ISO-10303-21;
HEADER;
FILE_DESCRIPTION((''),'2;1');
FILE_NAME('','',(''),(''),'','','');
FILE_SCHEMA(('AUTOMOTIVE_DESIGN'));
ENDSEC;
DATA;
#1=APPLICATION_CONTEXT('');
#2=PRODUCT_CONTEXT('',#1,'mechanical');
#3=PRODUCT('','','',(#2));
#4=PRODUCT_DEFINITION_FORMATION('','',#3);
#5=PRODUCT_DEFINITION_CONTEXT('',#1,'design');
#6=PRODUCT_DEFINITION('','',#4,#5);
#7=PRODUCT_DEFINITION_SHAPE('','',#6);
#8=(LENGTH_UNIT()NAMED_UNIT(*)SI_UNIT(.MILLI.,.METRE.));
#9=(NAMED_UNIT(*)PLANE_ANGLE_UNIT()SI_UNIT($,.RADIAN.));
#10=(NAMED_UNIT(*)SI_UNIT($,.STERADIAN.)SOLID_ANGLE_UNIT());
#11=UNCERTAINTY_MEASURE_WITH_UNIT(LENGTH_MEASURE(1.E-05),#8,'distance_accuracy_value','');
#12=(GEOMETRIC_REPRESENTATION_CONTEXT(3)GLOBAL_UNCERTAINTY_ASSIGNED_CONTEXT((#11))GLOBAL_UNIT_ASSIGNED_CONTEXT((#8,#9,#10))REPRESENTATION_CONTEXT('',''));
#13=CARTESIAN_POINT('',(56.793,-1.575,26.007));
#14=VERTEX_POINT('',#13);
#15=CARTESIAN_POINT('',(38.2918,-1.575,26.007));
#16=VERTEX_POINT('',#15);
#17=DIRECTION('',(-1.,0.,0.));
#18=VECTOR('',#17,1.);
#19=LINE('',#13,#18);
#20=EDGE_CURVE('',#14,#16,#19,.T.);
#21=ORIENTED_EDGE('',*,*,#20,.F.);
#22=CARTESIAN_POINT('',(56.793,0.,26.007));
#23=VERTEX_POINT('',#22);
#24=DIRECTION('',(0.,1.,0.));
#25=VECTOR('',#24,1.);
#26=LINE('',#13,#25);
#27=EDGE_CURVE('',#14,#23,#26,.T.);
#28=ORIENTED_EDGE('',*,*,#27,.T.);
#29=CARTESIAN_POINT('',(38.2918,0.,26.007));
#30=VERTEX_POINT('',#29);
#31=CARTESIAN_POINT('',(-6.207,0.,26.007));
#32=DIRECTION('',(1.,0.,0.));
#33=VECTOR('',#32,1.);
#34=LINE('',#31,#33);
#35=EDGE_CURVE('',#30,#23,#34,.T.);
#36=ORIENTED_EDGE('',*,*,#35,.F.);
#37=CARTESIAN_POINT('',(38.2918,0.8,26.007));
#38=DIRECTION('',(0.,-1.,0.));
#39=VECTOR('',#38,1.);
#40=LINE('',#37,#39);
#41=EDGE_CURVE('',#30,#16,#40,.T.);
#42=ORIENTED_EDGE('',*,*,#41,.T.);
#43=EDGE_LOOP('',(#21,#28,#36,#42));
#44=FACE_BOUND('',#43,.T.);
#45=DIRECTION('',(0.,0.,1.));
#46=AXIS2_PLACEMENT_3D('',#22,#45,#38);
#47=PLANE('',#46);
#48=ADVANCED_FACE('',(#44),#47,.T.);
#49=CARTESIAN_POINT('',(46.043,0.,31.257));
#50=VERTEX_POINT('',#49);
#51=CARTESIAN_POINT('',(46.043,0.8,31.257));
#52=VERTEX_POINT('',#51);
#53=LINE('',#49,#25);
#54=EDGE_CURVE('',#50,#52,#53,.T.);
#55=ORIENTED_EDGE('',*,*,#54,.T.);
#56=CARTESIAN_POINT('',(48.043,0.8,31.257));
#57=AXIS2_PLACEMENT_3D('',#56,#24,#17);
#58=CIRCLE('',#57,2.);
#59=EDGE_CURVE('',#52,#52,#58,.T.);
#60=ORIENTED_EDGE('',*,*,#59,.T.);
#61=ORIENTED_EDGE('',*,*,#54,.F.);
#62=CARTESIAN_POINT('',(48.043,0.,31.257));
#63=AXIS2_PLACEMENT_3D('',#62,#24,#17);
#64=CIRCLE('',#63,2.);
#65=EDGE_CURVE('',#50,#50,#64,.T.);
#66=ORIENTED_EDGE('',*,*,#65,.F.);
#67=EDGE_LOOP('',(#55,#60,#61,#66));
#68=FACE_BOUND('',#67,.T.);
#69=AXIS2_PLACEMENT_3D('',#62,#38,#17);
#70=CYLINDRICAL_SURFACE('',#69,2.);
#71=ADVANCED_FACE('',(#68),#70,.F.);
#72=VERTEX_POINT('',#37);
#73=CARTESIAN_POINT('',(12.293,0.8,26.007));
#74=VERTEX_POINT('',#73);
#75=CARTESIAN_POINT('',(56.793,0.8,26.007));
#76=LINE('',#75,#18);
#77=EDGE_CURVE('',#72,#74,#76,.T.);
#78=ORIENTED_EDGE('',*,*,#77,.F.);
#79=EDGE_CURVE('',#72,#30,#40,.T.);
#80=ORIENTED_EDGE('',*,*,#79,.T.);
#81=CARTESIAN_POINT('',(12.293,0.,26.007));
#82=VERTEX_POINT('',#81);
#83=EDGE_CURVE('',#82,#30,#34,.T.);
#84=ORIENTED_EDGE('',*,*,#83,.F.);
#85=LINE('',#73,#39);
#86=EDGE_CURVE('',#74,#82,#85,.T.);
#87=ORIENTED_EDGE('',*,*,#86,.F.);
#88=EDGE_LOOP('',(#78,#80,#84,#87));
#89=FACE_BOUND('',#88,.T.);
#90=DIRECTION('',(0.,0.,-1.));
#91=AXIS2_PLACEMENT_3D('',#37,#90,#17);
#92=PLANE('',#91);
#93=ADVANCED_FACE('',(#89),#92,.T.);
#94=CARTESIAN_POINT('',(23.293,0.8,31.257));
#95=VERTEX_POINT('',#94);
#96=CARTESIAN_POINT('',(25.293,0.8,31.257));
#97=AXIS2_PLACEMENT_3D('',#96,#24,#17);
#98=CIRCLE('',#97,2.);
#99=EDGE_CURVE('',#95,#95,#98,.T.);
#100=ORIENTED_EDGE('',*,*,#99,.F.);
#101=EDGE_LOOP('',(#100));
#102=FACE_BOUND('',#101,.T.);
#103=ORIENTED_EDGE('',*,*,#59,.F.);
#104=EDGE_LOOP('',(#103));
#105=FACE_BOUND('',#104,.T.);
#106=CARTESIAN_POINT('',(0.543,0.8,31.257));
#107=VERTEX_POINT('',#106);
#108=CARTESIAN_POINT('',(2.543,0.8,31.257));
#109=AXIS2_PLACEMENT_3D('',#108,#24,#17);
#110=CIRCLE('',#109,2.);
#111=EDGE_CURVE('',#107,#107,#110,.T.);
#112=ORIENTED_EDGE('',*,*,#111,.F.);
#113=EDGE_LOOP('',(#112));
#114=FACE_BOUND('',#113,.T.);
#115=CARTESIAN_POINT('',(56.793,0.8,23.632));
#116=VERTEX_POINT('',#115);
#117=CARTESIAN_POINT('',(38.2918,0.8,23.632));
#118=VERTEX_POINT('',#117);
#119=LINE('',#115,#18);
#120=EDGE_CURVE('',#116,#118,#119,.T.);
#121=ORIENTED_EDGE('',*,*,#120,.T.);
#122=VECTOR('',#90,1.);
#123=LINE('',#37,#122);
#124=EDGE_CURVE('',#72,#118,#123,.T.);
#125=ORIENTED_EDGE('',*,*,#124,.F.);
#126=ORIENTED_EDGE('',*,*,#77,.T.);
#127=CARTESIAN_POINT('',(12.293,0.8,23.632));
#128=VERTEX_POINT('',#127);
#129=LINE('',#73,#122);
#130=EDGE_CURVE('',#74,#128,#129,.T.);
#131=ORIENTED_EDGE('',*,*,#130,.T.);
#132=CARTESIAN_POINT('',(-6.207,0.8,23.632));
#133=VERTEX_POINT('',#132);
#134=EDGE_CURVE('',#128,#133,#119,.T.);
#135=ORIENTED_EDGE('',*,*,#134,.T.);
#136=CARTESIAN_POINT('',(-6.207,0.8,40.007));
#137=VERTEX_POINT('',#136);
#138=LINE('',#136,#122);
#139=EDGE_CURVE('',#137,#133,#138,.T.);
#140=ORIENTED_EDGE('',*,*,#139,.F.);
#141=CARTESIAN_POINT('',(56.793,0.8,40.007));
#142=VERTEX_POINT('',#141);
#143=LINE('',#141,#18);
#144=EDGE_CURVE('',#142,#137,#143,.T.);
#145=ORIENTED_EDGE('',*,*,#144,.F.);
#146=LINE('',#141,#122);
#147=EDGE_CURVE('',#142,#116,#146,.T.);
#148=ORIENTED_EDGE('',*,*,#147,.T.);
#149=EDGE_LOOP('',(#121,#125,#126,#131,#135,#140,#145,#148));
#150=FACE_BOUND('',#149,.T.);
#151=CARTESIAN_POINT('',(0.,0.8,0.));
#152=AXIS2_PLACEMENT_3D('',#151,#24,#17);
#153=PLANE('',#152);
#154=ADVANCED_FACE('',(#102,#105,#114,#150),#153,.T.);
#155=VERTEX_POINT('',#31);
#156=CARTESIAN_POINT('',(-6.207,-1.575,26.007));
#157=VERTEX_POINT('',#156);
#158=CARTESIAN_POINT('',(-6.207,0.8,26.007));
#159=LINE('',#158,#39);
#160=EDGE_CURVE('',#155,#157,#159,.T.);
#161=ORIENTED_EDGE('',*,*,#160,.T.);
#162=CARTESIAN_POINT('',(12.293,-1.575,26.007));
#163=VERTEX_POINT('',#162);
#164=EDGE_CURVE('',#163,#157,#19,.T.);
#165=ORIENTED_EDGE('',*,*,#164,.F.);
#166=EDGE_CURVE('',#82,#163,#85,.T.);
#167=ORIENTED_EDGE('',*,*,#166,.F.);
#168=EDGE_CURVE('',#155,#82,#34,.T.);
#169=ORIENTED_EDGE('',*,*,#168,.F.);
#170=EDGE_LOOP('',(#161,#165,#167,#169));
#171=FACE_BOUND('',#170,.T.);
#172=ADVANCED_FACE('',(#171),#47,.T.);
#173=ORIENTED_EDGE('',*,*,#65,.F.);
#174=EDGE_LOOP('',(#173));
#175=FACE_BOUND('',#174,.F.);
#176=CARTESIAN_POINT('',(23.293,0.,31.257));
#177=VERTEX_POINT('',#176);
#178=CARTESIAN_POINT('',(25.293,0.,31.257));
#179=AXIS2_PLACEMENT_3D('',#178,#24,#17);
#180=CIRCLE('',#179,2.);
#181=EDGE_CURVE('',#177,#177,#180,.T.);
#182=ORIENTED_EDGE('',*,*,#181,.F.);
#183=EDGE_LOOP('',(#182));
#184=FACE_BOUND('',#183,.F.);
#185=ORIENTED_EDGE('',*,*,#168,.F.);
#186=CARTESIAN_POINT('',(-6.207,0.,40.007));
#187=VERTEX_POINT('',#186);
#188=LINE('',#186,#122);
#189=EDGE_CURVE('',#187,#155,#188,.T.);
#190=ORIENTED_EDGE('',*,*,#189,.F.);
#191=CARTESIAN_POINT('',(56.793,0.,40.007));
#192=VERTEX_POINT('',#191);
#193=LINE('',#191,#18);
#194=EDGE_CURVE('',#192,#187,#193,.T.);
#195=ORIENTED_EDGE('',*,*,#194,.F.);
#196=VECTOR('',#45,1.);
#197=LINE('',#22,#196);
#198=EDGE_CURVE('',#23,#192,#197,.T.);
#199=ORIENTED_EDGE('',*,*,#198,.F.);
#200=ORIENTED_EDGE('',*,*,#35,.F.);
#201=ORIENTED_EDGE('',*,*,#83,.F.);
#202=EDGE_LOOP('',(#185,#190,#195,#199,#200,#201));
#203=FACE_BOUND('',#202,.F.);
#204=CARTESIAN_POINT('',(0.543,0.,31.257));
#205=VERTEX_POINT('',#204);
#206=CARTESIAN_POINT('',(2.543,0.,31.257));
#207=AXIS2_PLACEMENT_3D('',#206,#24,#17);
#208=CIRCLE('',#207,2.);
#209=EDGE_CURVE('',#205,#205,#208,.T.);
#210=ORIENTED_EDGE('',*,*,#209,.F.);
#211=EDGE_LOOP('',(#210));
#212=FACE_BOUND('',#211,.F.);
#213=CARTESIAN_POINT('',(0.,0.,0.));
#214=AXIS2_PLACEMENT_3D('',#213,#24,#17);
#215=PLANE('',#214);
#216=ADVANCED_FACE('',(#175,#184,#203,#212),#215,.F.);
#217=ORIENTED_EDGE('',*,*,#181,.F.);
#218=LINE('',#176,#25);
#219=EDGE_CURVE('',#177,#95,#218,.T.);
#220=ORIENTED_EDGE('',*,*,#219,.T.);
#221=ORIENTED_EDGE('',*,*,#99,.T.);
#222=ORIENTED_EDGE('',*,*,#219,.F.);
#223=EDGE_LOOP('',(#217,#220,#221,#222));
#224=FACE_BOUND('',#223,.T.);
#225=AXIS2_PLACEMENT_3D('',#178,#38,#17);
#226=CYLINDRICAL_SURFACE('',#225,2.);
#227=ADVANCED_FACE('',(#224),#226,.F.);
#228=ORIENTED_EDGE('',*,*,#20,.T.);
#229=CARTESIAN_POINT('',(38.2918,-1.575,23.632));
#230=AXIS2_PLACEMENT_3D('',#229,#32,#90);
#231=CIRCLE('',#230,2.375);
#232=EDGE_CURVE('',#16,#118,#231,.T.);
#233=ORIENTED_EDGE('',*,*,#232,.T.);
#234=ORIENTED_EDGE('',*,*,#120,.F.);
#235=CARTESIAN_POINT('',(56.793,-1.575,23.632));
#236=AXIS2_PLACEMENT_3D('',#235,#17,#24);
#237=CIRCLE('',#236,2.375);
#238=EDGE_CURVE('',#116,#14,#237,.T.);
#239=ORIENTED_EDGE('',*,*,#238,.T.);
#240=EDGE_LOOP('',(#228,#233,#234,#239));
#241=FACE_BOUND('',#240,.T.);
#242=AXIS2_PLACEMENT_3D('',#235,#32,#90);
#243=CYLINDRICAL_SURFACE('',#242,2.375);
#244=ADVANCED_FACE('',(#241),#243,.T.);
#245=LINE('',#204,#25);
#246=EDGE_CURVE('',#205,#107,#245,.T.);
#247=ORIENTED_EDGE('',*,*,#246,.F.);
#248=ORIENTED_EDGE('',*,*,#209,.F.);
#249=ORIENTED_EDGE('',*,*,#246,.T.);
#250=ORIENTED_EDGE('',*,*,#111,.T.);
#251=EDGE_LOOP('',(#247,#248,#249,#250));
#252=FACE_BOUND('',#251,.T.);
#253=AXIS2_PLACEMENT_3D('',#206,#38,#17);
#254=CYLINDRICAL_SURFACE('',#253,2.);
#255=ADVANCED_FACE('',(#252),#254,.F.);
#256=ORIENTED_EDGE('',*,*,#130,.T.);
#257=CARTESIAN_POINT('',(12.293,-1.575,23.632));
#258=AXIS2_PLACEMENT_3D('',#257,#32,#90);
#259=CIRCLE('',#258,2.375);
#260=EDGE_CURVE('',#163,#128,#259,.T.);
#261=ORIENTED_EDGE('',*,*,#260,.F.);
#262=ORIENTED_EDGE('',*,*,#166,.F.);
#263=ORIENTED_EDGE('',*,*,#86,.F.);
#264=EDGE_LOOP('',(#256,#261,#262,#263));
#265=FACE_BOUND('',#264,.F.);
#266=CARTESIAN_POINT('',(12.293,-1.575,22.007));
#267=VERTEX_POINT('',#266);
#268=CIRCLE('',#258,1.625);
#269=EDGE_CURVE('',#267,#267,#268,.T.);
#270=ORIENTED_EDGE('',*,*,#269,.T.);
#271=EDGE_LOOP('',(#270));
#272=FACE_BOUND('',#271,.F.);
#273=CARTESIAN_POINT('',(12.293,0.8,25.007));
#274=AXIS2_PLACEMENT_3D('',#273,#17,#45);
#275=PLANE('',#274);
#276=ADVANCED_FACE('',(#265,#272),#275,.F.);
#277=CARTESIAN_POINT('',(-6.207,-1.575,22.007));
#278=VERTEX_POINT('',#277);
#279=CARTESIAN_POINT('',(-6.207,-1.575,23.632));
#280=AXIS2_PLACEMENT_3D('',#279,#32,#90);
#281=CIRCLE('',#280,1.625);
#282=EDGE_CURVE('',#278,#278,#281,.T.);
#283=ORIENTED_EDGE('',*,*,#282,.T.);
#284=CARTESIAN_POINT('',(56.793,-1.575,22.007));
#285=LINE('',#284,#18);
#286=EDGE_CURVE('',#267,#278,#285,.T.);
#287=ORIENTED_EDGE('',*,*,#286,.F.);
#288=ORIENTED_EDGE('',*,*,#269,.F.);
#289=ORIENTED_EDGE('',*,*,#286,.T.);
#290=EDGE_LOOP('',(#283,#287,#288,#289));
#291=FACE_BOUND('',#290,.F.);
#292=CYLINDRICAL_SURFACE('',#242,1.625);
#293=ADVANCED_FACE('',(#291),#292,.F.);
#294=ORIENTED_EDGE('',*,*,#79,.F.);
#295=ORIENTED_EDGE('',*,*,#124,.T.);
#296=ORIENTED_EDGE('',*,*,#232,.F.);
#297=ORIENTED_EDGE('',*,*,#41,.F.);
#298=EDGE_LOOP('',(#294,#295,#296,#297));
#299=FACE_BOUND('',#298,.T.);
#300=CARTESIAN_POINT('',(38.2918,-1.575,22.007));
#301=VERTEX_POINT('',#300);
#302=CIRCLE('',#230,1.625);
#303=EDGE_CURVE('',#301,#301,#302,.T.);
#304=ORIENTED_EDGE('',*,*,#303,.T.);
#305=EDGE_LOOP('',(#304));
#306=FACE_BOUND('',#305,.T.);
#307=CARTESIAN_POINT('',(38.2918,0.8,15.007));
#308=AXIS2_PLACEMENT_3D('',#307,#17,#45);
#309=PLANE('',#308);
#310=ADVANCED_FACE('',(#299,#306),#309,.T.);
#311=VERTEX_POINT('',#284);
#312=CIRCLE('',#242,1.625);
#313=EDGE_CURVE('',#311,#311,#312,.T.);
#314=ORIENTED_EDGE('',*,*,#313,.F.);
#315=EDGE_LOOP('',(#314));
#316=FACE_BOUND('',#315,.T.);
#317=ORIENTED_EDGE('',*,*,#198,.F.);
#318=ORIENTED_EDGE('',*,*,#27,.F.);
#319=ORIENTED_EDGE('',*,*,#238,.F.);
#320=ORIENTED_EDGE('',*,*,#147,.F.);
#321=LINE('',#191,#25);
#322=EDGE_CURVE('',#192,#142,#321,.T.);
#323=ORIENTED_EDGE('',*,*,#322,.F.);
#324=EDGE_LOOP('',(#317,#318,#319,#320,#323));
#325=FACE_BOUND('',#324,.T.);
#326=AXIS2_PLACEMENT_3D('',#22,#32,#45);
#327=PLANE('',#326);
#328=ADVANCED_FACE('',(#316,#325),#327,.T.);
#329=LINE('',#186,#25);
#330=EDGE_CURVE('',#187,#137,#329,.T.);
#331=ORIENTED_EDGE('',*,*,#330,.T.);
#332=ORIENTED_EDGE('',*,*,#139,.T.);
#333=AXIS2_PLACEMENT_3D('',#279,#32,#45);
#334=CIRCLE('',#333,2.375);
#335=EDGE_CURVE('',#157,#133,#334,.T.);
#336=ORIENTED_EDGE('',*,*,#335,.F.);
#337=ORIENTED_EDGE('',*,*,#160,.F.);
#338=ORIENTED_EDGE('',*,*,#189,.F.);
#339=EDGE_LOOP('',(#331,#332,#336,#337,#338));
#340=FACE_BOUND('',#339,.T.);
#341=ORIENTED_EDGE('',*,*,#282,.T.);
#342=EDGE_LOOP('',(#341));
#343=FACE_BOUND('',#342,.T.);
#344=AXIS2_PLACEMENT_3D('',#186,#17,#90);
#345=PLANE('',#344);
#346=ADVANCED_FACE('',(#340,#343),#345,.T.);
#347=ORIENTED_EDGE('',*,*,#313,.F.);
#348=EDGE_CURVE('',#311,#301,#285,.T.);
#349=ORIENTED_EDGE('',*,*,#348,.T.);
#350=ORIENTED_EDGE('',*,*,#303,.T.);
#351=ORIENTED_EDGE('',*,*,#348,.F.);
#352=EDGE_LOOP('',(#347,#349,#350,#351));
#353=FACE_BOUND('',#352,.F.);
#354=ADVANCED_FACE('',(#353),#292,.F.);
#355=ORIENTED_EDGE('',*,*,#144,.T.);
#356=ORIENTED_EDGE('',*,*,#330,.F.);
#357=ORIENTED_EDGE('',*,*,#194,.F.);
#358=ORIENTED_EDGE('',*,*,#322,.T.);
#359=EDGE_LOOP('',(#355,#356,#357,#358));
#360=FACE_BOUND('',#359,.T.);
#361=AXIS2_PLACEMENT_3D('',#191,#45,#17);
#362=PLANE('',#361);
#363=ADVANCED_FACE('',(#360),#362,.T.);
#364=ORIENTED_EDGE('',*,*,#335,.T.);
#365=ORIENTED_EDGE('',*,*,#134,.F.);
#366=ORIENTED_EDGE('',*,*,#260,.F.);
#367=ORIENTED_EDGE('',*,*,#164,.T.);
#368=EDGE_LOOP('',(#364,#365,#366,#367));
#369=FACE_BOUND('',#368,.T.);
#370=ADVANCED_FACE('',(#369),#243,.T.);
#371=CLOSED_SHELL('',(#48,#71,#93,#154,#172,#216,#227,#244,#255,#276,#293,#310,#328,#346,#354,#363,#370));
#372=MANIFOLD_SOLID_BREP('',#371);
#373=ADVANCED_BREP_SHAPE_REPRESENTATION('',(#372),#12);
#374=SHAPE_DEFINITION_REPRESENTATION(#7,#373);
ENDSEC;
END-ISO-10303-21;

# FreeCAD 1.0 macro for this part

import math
import FreeCAD as App
import Part
import Sketcher
Q = App.Units.Quantity


def add_polygon(sketch, points):
    """Adds a closed chain of lines whose ends are joined by coincident constraints."""
    first, n = sketch.GeometryCount, len(points)
    for a, b in zip(points, points[1:] + points[:1]):
        sketch.addGeometry(Part.LineSegment(App.Vector(*a, 0), App.Vector(*b, 0)), False)
    for i in range(n):
        sketch.addConstraint(Sketcher.Constraint("Coincident", first + i, 2, first + (i + 1) % n, 1))

doc = App.newDocument("Part")
body = doc.addObject("PartDesign::Body", "Body")

# Sketch on XZ plane
sketch1 = body.newObject("Sketcher::SketchObject", "Sketch")
sketch1.AttachmentSupport = (doc.getObject("XZ_Plane"), [""])
sketch1.MapMode = "FlatFace"
add_polygon(sketch1, [(-6.207, 26.007), (-6.207, 40.007), (56.793, 40.007), (56.793, 26.007)])  # lines 0-3
sketch1.addGeometry(Part.Circle(App.Vector(48.043, 31.257, 0), App.Vector(0, 0, 1), 2), False)  # 4
sketch1.addGeometry(Part.Circle(App.Vector(25.293, 31.257, 0), App.Vector(0, 0, 1), 2), False)  # 5
sketch1.addGeometry(Part.Circle(App.Vector(2.543, 31.257, 0), App.Vector(0, 0, 1), 2), False)  # 6
sketch1.addConstraint([
    Sketcher.Constraint("Vertical", 0),
    Sketcher.Constraint("Horizontal", 1),
    Sketcher.Constraint("Vertical", 2),
    Sketcher.Constraint("Horizontal", 3),
    Sketcher.Constraint("Equal", 4, 5),
    Sketcher.Constraint("Equal", 5, 6),
    Sketcher.Constraint("Horizontal", 4, 3, 5, 3),
    Sketcher.Constraint("Horizontal", 5, 3, 6, 3),
    Sketcher.Constraint("Diameter", 4, Q("4 mm")),
    Sketcher.Constraint("DistanceX", 1, 1, 1, 2, Q("63 mm")),
    Sketcher.Constraint("DistanceY", 0, 1, 0, 2, Q("14 mm")),
    Sketcher.Constraint("DistanceX", 0, 2, 5, 3, Q("31.5 mm")),
    Sketcher.Constraint("DistanceX", 0, 2, 6, 3, Q("8.75 mm")),
    Sketcher.Constraint("DistanceY", 6, 3, 0, 2, Q("8.75 mm")),
    Sketcher.Constraint("DistanceX", 4, 3, 1, 2, Q("8.75 mm")),
    Sketcher.Constraint("DistanceX", -1, 1, 4, 3, Q("48.043 mm")),
    Sketcher.Constraint("DistanceY", -1, 1, 4, 3, Q("31.257 mm")),
])
pad1 = body.newObject("PartDesign::Pad", "Pad")
pad1.Profile = sketch1
pad1.Length = 0.8
pad1.Reversed = True

# Sketch on YZ plane
sketch2 = body.newObject("Sketcher::SketchObject", "Sketch001")
sketch2.AttachmentSupport = (doc.getObject("YZ_Plane"), [""])
sketch2.MapMode = "FlatFace"
sketch2.AttachmentOffset = App.Placement(App.Vector(0, 0, 56.793), App.Rotation())
sketch2.addGeometry([
    Part.ArcOfCircle(Part.Circle(App.Vector(-1.575, 23.632, 0), App.Vector(0, 0, 1), 2.375), math.radians(90), math.radians(360)),
    Part.LineSegment(App.Vector(0.8, 23.632, 0), App.Vector(0.8, 26.007, 0)),
    Part.LineSegment(App.Vector(0.8, 26.007, 0), App.Vector(-1.575, 26.007, 0)),
    Part.Circle(App.Vector(-1.575, 23.632, 0), App.Vector(0, 0, 1), 1.625),
], False)
sketch2.addConstraint([
    Sketcher.Constraint("Tangent", 0, 2, 1, 1),
    Sketcher.Constraint("Coincident", 1, 2, 2, 1),
    Sketcher.Constraint("Tangent", 2, 2, 0, 1),
    Sketcher.Constraint("Vertical", 1),
    Sketcher.Constraint("Horizontal", 2),
    Sketcher.Constraint("Coincident", 3, 3, 0, 3),
    Sketcher.Constraint("Diameter", 3, Q("3.25 mm")),
    Sketcher.Constraint("Radius", 0, Q("2.375 mm")),
    Sketcher.Constraint("DistanceX", -1, 1, 0, 2, Q("0.8 mm")),
    Sketcher.Constraint("DistanceY", -1, 1, 0, 3, Q("23.632 mm")),
])
pad2 = body.newObject("PartDesign::Pad", "Pad001")
pad2.Profile = sketch2
pad2.Length = 63
pad2.Reversed = True

# Sketch on XZ plane
sketch3 = body.newObject("Sketcher::SketchObject", "Sketch002")
sketch3.AttachmentSupport = (doc.getObject("XZ_Plane"), [""])
sketch3.MapMode = "FlatFace"
sketch3.AttachmentOffset = App.Placement(App.Vector(0, 0, -0.8), App.Rotation())
add_polygon(sketch3, [(12.293, 26.007), (38.2918, 26.007), (38.2918, 15.007), (12.293, 15.007)])  # lines 0-3
sketch3.addConstraint([
    Sketcher.Constraint("Horizontal", 0),
    Sketcher.Constraint("Vertical", 1),
    Sketcher.Constraint("Horizontal", 2),
    Sketcher.Constraint("Vertical", 3),
    Sketcher.Constraint("DistanceY", 1, 2, 1, 1, Q("11 mm")),
    Sketcher.Constraint("DistanceX", 0, 1, 0, 2, Q("25.9988 mm")),
    Sketcher.Constraint("DistanceY", -1, 1, 0, 2, Q("26.007 mm")),
    Sketcher.Constraint("DistanceX", -1, 1, 2, 2, Q("12.293 mm")),
])
pocket1 = body.newObject("PartDesign::Pocket", "Pocket")
pocket1.Profile = sketch3
pocket1.Length = 63
pocket1.Reversed = True

doc.recompute()
